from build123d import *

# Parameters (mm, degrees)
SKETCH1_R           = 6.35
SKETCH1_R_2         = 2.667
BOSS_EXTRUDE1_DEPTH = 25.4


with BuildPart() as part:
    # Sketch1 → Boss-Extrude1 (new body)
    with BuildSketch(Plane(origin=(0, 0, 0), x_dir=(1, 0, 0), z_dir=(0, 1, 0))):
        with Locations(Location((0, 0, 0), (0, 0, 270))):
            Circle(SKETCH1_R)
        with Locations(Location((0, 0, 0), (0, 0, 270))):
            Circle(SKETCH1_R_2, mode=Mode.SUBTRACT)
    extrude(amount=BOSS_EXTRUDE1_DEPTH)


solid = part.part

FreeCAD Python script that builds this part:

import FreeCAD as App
import Part
import Sketcher
from FreeCAD import Vector
Q = App.Units.Quantity

doc = App.newDocument("Part")
params = doc.addObject("Spreadsheet::Sheet", "Params")
for row, (alias, value) in enumerate([
    ("sketch1_diameter", "0.5 in"),
    ("sketch1_diameter2", "0.21 in"),
    ("pad1_length", "1 in"),
], start=1):
    params.set(f"A{row}", alias)
    params.set(f"B{row}", "=" + value)
    params.setAlias(f"B{row}", alias)

body = doc.addObject("PartDesign::Body", "Body")

sketch1 = body.newObject("Sketcher::SketchObject", "Sketch")
sketch1.AttachmentSupport = (doc.getObject("XZ_Plane"), [""])
sketch1.MapMode = "FlatFace"
sketch1.addGeometry([
    Part.Circle(Vector(0, 0, 0), Vector(0, 0, 1), 6.35),
    Part.Circle(Vector(0, 0, 0), Vector(0, 0, 1), 2.667),
], False)
sketch1.addConstraint([
    Sketcher.Constraint("Coincident", 0, 3, -1, 1),
    Sketcher.Constraint("Coincident", 1, 3, -1, 1),
    Sketcher.Constraint("Diameter", 0, Q("0.5 in")),
    Sketcher.Constraint("Diameter", 1, Q("0.21 in")),
])
sketch1.setExpression("Constraints[2]", "Params.sketch1_diameter")
sketch1.setExpression("Constraints[3]", "Params.sketch1_diameter2")
pad1 = body.newObject("PartDesign::Pad", "Pad")
pad1.Profile = sketch1
pad1.setExpression("Length", "Params.pad1_length")
pad1.Reversed = True

doc.recompute()
